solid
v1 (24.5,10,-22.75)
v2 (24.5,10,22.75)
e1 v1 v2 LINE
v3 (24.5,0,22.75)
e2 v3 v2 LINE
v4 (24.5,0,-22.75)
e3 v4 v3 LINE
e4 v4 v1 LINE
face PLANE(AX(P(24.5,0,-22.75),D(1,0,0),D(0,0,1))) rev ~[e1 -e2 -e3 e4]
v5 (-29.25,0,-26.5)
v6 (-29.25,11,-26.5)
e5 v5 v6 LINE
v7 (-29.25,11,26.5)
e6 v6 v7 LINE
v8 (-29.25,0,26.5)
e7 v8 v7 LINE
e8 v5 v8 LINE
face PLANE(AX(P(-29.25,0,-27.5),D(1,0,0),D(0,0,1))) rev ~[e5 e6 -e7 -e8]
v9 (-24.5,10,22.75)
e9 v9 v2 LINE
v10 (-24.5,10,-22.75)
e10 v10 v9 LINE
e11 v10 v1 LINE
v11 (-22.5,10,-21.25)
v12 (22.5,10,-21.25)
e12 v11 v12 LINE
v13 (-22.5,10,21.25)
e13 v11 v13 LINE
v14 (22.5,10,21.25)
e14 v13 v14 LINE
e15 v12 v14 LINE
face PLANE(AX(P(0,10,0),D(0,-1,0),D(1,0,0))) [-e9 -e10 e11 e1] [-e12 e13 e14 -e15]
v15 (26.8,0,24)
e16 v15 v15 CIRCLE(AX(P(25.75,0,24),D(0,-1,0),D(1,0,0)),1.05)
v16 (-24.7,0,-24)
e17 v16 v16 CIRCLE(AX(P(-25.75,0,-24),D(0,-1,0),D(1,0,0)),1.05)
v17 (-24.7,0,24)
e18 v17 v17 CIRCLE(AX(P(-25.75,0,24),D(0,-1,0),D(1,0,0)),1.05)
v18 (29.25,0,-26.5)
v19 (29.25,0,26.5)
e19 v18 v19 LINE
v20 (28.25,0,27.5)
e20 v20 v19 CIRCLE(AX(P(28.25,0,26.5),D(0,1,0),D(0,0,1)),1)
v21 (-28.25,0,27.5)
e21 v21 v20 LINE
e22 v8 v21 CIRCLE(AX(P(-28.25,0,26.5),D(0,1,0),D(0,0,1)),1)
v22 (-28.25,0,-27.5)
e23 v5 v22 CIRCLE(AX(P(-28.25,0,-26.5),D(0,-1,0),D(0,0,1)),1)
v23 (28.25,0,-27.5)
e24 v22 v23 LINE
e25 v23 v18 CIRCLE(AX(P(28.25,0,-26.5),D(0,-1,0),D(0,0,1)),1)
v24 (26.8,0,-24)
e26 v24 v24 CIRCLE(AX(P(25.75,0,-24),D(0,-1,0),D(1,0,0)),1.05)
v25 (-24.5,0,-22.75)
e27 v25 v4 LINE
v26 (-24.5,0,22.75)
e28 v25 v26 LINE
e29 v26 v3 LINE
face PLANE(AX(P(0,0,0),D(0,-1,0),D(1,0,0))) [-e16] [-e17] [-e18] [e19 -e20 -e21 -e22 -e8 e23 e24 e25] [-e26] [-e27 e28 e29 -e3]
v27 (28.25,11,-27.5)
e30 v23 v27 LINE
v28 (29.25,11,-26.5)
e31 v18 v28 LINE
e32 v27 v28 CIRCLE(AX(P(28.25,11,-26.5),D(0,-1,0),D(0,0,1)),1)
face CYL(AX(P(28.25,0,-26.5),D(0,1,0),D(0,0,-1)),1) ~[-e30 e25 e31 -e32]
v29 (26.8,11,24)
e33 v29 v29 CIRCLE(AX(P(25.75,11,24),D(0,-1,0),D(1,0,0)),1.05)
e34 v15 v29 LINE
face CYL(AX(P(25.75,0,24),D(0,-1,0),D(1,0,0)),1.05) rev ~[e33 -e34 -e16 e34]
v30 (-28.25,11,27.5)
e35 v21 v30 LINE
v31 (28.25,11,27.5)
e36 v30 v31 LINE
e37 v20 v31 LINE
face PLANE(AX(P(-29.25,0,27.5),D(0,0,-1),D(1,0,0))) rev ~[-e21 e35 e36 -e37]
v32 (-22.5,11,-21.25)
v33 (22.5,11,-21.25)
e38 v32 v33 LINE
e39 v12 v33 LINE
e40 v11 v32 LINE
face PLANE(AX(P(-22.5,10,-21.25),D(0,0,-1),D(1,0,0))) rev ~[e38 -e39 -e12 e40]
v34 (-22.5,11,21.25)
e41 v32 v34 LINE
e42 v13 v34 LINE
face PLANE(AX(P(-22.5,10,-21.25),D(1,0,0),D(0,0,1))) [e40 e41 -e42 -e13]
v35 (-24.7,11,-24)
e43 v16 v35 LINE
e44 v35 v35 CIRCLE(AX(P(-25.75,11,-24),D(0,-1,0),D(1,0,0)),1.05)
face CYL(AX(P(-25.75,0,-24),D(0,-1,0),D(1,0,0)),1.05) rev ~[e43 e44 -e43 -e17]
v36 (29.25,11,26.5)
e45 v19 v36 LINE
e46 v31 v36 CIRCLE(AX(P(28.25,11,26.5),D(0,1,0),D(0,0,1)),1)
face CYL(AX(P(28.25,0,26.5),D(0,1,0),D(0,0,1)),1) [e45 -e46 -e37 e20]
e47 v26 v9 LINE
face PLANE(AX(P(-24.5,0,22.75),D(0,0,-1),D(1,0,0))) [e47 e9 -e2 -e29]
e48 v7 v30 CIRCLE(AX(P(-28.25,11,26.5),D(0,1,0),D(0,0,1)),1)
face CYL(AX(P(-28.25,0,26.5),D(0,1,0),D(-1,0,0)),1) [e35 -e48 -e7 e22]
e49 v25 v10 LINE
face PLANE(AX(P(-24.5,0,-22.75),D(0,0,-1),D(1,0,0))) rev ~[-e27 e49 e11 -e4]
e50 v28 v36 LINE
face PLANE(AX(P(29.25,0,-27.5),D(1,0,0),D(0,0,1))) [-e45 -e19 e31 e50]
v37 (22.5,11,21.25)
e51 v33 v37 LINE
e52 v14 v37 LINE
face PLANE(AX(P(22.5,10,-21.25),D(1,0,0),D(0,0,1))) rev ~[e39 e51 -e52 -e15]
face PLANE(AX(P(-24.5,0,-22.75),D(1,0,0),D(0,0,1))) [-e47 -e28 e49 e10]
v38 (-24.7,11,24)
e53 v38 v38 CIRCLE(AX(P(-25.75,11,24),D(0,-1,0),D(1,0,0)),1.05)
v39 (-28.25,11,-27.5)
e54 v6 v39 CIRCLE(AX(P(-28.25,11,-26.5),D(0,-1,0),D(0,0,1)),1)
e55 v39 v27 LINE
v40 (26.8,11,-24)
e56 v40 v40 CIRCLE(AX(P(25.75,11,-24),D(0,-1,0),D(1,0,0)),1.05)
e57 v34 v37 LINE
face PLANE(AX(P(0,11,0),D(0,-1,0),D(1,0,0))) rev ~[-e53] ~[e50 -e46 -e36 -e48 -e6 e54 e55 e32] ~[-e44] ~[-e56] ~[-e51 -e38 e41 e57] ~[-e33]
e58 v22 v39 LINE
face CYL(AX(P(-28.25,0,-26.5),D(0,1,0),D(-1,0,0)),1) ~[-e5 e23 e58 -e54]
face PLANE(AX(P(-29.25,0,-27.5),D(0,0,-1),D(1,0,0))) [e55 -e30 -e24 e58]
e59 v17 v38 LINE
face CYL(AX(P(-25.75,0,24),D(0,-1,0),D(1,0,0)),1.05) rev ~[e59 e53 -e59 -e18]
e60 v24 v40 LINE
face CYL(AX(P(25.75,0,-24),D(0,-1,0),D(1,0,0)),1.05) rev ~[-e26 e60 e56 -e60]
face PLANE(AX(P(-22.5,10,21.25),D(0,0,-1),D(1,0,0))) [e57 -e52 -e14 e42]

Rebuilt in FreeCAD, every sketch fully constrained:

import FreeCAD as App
import Part
import Sketcher

V = App.Vector
Q = App.Units.Quantity


def edges_at(feature, points):
    """Names of the edges that pass closest to the given points."""
    edges = feature.Shape.Edges
    near = lambda p: min(range(len(edges)), key=lambda i: edges[i].distToShape(Part.Vertex(*p))[0])
    return sorted({f"Edge{near(p) + 1}" for p in points})


def add_polygon(sketch, points):
    """Adds a closed chain of lines whose ends are joined by coincident constraints."""
    first, n = sketch.GeometryCount, len(points)
    for a, b in zip(points, points[1:] + points[:1]):
        sketch.addGeometry(Part.LineSegment(App.Vector(*a, 0), App.Vector(*b, 0)), False)
    for i in range(n):
        sketch.addConstraint(Sketcher.Constraint("Coincident", first + i, 2, first + (i + 1) % n, 1))

doc = App.newDocument("Part")
body = doc.addObject("PartDesign::Body", "Body")

# Sketch on XZ plane
sketch1 = doc.addObject("Sketcher::SketchObject", "Sketch")
body.addObject(sketch1)
sketch1.AttachmentSupport = (doc.XZ_Plane, [""])
sketch1.MapMode = "FlatFace"
add_polygon(sketch1, [(-29, 28), (-29, -28), (29, -28), (29, 28)])  # lines 0-3
sketch1.addConstraint([
    Sketcher.Constraint("Vertical", 0),
    Sketcher.Constraint("Horizontal", 1),
    Sketcher.Constraint("Vertical", 2),
    Sketcher.Constraint("Horizontal", 3),
    Sketcher.Constraint("Symmetric", 0, 2, 2, 2, -1, 1),
    Sketcher.Constraint("DistanceY", 0, 2, 0, 1, Q("55 mm")),
    Sketcher.Constraint("DistanceX", 1, 1, 1, 2, Q("58.5 mm")),
])
pad1 = doc.addObject("PartDesign::Pad", "Pad")
body.addObject(pad1)
pad1.Profile = sketch1
pad1.Length = 11
pad1.Reversed = True

# Sketch on XZ plane
sketch2 = doc.addObject("Sketcher::SketchObject", "Sketch001")
body.addObject(sketch2)
sketch2.AttachmentSupport = (doc.XZ_Plane, [""])
sketch2.MapMode = "FlatFace"
add_polygon(sketch2, [(-24, 23), (-24, -23), (24, -23), (24, 23)])  # lines 0-3
sketch2.addConstraint([
    Sketcher.Constraint("Vertical", 0),
    Sketcher.Constraint("Horizontal", 1),
    Sketcher.Constraint("Vertical", 2),
    Sketcher.Constraint("Horizontal", 3),
    Sketcher.Constraint("Symmetric", 0, 2, 2, 2, -1, 1),
    Sketcher.Constraint("DistanceX", 1, 1, 1, 2, Q("49 mm")),
    Sketcher.Constraint("DistanceY", 0, 2, 0, 1, Q("45.5 mm")),
])
pocket1 = doc.addObject("PartDesign::Pocket", "Pocket")
body.addObject(pocket1)
pocket1.Profile = sketch2
pocket1.Length = 10

# Sketch on XZ plane
sketch3 = doc.addObject("Sketcher::SketchObject", "Sketch002")
body.addObject(sketch3)
sketch3.AttachmentSupport = (doc.XZ_Plane, [""])
sketch3.MapMode = "FlatFace"
sketch3.AttachmentOffset = App.Placement(V(0, 0, -10), App.Rotation())
add_polygon(sketch3, [(-22, 21), (-22, -21), (22, -21), (22, 21)])  # lines 0-3
sketch3.addConstraint([
    Sketcher.Constraint("Vertical", 0),
    Sketcher.Constraint("Horizontal", 1),
    Sketcher.Constraint("Vertical", 2),
    Sketcher.Constraint("Horizontal", 3),
    Sketcher.Constraint("Symmetric", 0, 2, 2, 2, -1, 1),
    Sketcher.Constraint("DistanceX", 1, 1, 1, 2, Q("45 mm")),
    Sketcher.Constraint("DistanceY", 0, 2, 0, 1, Q("42.5 mm")),
])
pocket2 = doc.addObject("PartDesign::Pocket", "Pocket001")
body.addObject(pocket2)
pocket2.Profile = sketch3
pocket2.Length = 5

# Sketch on XZ plane
sketch4 = doc.addObject("Sketcher::SketchObject", "Sketch003")
body.addObject(sketch4)
sketch4.AttachmentSupport = (doc.XZ_Plane, [""])
sketch4.MapMode = "FlatFace"
sketch4.addGeometry([
    Part.Circle(V(-25.8, 24, 0), V(0, 0, 1), 1.1),
    Part.Circle(V(25.8, 24, 0), V(0, 0, 1), 1.1),
    Part.Circle(V(-25.8, -24, 0), V(0, 0, 1), 1.1),
    Part.Circle(V(25.8, -24, 0), V(0, 0, 1), 1.1),
], False)
sketch4.addConstraint([
    Sketcher.Constraint("Equal", 0, 1),
    Sketcher.Constraint("Equal", 1, 2),
    Sketcher.Constraint("Equal", 2, 3),
    Sketcher.Constraint("Symmetric", 1, 3, 2, 3, -1, 1),
    Sketcher.Constraint("Symmetric", 0, 3, 3, 3, -1, 1),
    Sketcher.Constraint("Symmetric", 0, 3, 1, 3, -2),
    Sketcher.Constraint("Diameter", 0, Q("2.1 mm")),
    Sketcher.Constraint("DistanceY", -1, 1, 0, 3, Q("24 mm")),
    Sketcher.Constraint("DistanceX", 0, 3, 1, 3, Q("51.5 mm")),
])
pocket3 = doc.addObject("PartDesign::Pocket", "Pocket002")
body.addObject(pocket3)
pocket3.Profile = sketch4
pocket3.Length = 12
doc.recompute()

fillet = doc.addObject("PartDesign::Fillet", "Fillet")
body.addObject(fillet)
fillet.Base = (pocket3, edges_at(pocket3, [
    (29.25, 5.5, 27.5),
    (29.25, 5.5, -27.5),
    (-29.25, 5.5, 27.5),
    (-29.25, 5.5, -27.5),
]))
fillet.Radius = 1

doc.recompute()
